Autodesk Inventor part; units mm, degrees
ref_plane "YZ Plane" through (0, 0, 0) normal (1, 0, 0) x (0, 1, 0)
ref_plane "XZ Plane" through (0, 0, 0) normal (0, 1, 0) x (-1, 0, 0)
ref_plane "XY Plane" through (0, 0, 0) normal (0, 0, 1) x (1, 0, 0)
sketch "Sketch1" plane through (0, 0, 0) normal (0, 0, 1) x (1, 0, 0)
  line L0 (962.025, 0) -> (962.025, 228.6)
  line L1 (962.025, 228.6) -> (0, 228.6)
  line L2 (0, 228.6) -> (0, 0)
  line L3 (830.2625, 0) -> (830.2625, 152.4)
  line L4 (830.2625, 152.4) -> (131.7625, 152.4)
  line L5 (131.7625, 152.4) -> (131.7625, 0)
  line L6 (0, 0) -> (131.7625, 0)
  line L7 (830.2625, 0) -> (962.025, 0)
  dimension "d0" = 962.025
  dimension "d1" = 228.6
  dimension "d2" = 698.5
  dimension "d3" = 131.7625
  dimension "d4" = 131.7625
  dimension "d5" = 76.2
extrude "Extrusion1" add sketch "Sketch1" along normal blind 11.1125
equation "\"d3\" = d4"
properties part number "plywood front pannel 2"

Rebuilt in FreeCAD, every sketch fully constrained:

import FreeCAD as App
import Part
import Sketcher
from FreeCAD import Vector
Q = App.Units.Quantity


def add_polygon(sketch, points):
    """Adds a closed chain of lines whose ends are joined by coincident constraints."""
    first, n = sketch.GeometryCount, len(points)
    for a, b in zip(points, points[1:] + points[:1]):
        sketch.addGeometry(Part.LineSegment(App.Vector(*a, 0), App.Vector(*b, 0)), False)
    for i in range(n):
        sketch.addConstraint(Sketcher.Constraint("Coincident", first + i, 2, first + (i + 1) % n, 1))

doc = App.newDocument("Part")
params = doc.addObject("Spreadsheet::Sheet", "Params")
for row, (alias, value) in enumerate([
    ("sketch1_height", "9 in"),
    ("sketch1_width", "27.5 in"),
    ("sketch1_width2", "5.1875 in"),
    ("pad1_length", "0.4375 in"),
], start=1):
    params.set(f"A{row}", alias)
    params.set(f"B{row}", "=" + value)
    params.setAlias(f"B{row}", alias)

body = doc.addObject("PartDesign::Body", "Body")

# Sketch on XY plane
sketch1 = doc.addObject("Sketcher::SketchObject", "Sketch")
body.addObject(sketch1)
sketch1.AttachmentSupport = (doc.XY_Plane, [""])
sketch1.MapMode = "FlatFace"
add_polygon(sketch1, [(830, 0), (962, 0), (962, 229), (0, 229), (0, 0), (132, 0), (132, 152), (830, 152)])  # lines 0-7
sketch1.addConstraint(Sketcher.Constraint("Horizontal", 0))
sketch1.addConstraint(Sketcher.Constraint("Vertical", 1))
sketch1.addConstraint(Sketcher.Constraint("Horizontal", 2))
sketch1.addConstraint(Sketcher.Constraint("Vertical", 3))
sketch1.addConstraint(Sketcher.Constraint("Horizontal", 4))
sketch1.addConstraint(Sketcher.Constraint("Vertical", 5))
sketch1.addConstraint(Sketcher.Constraint("Horizontal", 6))
sketch1.addConstraint(Sketcher.Constraint("Vertical", 7))
sketch1.addConstraint(Sketcher.Constraint("Coincident", 3, 2, -1, 1))
sketch1.addConstraint(Sketcher.Constraint("PointOnObject", 0, 2, -1))
sketch1.addConstraint(Sketcher.Constraint("Equal", 0, 4))
sketch1.addConstraint(Sketcher.Constraint("DistanceY", 1, 1, 1, 2, Q("9 in")))
sketch1.addConstraint(Sketcher.Constraint("DistanceX", 6, 1, 6, 2, Q("27.5 in")))
sketch1.addConstraint(Sketcher.Constraint("DistanceY", 5, 2, 2, 2, Q("3 in")))
sketch1.addConstraint(Sketcher.Constraint("DistanceX", 0, 1, 0, 2, Q("5.1875 in")))
sketch1.setExpression("Constraints[19]", "Params.sketch1_height")
sketch1.setExpression("Constraints[20]", "Params.sketch1_width")
sketch1.setExpression("Constraints[22]", "Params.sketch1_width2")
pad1 = doc.addObject("PartDesign::Pad", "Pad")
body.addObject(pad1)
pad1.Profile = sketch1
pad1.setExpression("Length", "Params.pad1_length")

doc.recompute()
